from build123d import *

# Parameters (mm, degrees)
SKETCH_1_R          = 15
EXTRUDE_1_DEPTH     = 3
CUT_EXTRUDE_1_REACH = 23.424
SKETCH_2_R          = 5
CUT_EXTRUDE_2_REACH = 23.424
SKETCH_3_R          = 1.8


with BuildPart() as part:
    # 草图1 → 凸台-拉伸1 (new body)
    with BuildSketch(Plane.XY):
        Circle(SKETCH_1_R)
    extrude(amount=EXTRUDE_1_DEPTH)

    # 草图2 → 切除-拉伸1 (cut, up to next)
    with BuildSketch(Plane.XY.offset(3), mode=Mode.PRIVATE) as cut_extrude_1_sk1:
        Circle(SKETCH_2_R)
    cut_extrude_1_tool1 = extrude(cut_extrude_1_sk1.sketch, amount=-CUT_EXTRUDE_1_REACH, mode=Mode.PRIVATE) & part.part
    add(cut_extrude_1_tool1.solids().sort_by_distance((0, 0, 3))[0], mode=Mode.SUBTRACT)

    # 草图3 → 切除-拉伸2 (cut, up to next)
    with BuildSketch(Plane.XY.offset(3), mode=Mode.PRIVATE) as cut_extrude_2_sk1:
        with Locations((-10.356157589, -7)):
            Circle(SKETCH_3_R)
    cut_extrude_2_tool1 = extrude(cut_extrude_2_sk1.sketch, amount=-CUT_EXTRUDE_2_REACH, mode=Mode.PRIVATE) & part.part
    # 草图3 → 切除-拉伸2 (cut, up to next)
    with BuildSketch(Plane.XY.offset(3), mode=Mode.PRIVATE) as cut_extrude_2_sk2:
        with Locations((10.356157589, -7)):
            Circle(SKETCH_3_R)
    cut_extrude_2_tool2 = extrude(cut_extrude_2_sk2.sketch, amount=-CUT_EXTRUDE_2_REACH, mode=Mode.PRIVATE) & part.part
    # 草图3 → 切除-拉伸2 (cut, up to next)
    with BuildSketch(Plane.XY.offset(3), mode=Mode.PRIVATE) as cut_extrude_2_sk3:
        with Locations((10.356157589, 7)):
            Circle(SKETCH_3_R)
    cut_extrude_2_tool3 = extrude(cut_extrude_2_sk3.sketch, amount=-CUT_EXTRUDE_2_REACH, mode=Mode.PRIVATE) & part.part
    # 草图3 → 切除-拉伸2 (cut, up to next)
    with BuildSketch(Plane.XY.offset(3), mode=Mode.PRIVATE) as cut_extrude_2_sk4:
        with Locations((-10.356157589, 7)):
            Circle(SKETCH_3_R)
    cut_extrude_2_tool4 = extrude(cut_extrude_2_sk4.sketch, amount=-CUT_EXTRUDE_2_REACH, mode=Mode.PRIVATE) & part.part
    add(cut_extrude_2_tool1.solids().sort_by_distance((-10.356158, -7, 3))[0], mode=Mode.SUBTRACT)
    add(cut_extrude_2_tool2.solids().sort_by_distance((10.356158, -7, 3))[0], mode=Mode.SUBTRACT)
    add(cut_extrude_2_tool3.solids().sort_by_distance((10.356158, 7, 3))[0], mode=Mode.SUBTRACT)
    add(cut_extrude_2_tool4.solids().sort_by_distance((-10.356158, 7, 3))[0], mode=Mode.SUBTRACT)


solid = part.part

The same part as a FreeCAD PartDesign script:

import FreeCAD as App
import Part
import Sketcher

doc = App.newDocument("Part")
body = doc.addObject("PartDesign::Body", "Body")

sketch1 = body.newObject("Sketcher::SketchObject", "Sketch")
sketch1.AttachmentSupport = (doc.getObject("XY_Plane"), [""])
sketch1.MapMode = "FlatFace"
sketch1.addGeometry(Part.Circle(App.Vector(0, 0, 0), App.Vector(0, 0, 1), 15), False)
sketch1.addConstraint([
    Sketcher.Constraint("Coincident", 0, 3, -1, 1),
    Sketcher.Constraint("Diameter", 0, 30.0),
])
pad1 = body.newObject("PartDesign::Pad", "Pad")
pad1.Profile = sketch1
pad1.Length = 3

sketch2 = body.newObject("Sketcher::SketchObject", "Sketch001")
sketch2.AttachmentSupport = (doc.getObject("XY_Plane"), [""])
sketch2.MapMode = "FlatFace"
sketch2.AttachmentOffset = App.Placement(App.Vector(0, 0, 3), App.Rotation())
sketch2.addGeometry(Part.Circle(App.Vector(0, 0, 0), App.Vector(0, 0, 1), 5), False)
sketch2.addConstraint([
    Sketcher.Constraint("Coincident", 0, 3, -1, 1),
    Sketcher.Constraint("Diameter", 0, 10.0),
])
pocket1 = body.newObject("PartDesign::Pocket", "Pocket")
pocket1.Profile = sketch2
pocket1.Type = "UpToFirst"

sketch3 = body.newObject("Sketcher::SketchObject", "Sketch002")
sketch3.AttachmentSupport = (doc.getObject("XY_Plane"), [""])
sketch3.MapMode = "FlatFace"
sketch3.AttachmentOffset = App.Placement(App.Vector(0, 0, 3), App.Rotation())
sketch3.addGeometry(Part.Circle(App.Vector(-10.4, -7, 0), App.Vector(0, 0, 1), 1.8), False)
sketch3.addConstraint([
    Sketcher.Constraint("Diameter", 0, 3.6),
    Sketcher.Constraint("DistanceY", 0, 3, -1, 1, 7.0),
    Sketcher.Constraint("DistanceX", 0, 3, -1, 1, 10.356158),
])
pocket2 = body.newObject("PartDesign::Pocket", "Pocket001")
pocket2.Profile = sketch3
pocket2.Type = "UpToFirst"

sketch4 = body.newObject("Sketcher::SketchObject", "Sketch003")
sketch4.AttachmentSupport = (doc.getObject("XY_Plane"), [""])
sketch4.MapMode = "FlatFace"
sketch4.AttachmentOffset = App.Placement(App.Vector(0, 0, 3), App.Rotation())
sketch4.addGeometry(Part.Circle(App.Vector(10.4, -7, 0), App.Vector(0, 0, 1), 1.8), False)
sketch4.addConstraint([
    Sketcher.Constraint("Diameter", 0, 3.6),
    Sketcher.Constraint("DistanceY", 0, 3, -1, 1, 7.0),
    Sketcher.Constraint("DistanceX", -1, 1, 0, 3, 10.356158),
])
pocket3 = body.newObject("PartDesign::Pocket", "Pocket002")
pocket3.Profile = sketch4
pocket3.Type = "UpToFirst"

sketch5 = body.newObject("Sketcher::SketchObject", "Sketch004")
sketch5.AttachmentSupport = (doc.getObject("XY_Plane"), [""])
sketch5.MapMode = "FlatFace"
sketch5.AttachmentOffset = App.Placement(App.Vector(0, 0, 3), App.Rotation())
sketch5.addGeometry(Part.Circle(App.Vector(10.4, 7, 0), App.Vector(0, 0, 1), 1.8), False)
sketch5.addConstraint([
    Sketcher.Constraint("Diameter", 0, 3.6),
    Sketcher.Constraint("DistanceY", -1, 1, 0, 3, 7.0),
    Sketcher.Constraint("DistanceX", -1, 1, 0, 3, 10.356158),
])
pocket4 = body.newObject("PartDesign::Pocket", "Pocket003")
pocket4.Profile = sketch5
pocket4.Type = "UpToFirst"

sketch6 = body.newObject("Sketcher::SketchObject", "Sketch005")
sketch6.AttachmentSupport = (doc.getObject("XY_Plane"), [""])
sketch6.MapMode = "FlatFace"
sketch6.AttachmentOffset = App.Placement(App.Vector(0, 0, 3), App.Rotation())
sketch6.addGeometry(Part.Circle(App.Vector(-10.4, 7, 0), App.Vector(0, 0, 1), 1.8), False)
sketch6.addConstraint([
    Sketcher.Constraint("Diameter", 0, 3.6),
    Sketcher.Constraint("DistanceY", -1, 1, 0, 3, 7.0),
    Sketcher.Constraint("DistanceX", 0, 3, -1, 1, 10.356158),
])
pocket5 = body.newObject("PartDesign::Pocket", "Pocket004")
pocket5.Profile = sketch6
pocket5.Type = "UpToFirst"

doc.recompute()
